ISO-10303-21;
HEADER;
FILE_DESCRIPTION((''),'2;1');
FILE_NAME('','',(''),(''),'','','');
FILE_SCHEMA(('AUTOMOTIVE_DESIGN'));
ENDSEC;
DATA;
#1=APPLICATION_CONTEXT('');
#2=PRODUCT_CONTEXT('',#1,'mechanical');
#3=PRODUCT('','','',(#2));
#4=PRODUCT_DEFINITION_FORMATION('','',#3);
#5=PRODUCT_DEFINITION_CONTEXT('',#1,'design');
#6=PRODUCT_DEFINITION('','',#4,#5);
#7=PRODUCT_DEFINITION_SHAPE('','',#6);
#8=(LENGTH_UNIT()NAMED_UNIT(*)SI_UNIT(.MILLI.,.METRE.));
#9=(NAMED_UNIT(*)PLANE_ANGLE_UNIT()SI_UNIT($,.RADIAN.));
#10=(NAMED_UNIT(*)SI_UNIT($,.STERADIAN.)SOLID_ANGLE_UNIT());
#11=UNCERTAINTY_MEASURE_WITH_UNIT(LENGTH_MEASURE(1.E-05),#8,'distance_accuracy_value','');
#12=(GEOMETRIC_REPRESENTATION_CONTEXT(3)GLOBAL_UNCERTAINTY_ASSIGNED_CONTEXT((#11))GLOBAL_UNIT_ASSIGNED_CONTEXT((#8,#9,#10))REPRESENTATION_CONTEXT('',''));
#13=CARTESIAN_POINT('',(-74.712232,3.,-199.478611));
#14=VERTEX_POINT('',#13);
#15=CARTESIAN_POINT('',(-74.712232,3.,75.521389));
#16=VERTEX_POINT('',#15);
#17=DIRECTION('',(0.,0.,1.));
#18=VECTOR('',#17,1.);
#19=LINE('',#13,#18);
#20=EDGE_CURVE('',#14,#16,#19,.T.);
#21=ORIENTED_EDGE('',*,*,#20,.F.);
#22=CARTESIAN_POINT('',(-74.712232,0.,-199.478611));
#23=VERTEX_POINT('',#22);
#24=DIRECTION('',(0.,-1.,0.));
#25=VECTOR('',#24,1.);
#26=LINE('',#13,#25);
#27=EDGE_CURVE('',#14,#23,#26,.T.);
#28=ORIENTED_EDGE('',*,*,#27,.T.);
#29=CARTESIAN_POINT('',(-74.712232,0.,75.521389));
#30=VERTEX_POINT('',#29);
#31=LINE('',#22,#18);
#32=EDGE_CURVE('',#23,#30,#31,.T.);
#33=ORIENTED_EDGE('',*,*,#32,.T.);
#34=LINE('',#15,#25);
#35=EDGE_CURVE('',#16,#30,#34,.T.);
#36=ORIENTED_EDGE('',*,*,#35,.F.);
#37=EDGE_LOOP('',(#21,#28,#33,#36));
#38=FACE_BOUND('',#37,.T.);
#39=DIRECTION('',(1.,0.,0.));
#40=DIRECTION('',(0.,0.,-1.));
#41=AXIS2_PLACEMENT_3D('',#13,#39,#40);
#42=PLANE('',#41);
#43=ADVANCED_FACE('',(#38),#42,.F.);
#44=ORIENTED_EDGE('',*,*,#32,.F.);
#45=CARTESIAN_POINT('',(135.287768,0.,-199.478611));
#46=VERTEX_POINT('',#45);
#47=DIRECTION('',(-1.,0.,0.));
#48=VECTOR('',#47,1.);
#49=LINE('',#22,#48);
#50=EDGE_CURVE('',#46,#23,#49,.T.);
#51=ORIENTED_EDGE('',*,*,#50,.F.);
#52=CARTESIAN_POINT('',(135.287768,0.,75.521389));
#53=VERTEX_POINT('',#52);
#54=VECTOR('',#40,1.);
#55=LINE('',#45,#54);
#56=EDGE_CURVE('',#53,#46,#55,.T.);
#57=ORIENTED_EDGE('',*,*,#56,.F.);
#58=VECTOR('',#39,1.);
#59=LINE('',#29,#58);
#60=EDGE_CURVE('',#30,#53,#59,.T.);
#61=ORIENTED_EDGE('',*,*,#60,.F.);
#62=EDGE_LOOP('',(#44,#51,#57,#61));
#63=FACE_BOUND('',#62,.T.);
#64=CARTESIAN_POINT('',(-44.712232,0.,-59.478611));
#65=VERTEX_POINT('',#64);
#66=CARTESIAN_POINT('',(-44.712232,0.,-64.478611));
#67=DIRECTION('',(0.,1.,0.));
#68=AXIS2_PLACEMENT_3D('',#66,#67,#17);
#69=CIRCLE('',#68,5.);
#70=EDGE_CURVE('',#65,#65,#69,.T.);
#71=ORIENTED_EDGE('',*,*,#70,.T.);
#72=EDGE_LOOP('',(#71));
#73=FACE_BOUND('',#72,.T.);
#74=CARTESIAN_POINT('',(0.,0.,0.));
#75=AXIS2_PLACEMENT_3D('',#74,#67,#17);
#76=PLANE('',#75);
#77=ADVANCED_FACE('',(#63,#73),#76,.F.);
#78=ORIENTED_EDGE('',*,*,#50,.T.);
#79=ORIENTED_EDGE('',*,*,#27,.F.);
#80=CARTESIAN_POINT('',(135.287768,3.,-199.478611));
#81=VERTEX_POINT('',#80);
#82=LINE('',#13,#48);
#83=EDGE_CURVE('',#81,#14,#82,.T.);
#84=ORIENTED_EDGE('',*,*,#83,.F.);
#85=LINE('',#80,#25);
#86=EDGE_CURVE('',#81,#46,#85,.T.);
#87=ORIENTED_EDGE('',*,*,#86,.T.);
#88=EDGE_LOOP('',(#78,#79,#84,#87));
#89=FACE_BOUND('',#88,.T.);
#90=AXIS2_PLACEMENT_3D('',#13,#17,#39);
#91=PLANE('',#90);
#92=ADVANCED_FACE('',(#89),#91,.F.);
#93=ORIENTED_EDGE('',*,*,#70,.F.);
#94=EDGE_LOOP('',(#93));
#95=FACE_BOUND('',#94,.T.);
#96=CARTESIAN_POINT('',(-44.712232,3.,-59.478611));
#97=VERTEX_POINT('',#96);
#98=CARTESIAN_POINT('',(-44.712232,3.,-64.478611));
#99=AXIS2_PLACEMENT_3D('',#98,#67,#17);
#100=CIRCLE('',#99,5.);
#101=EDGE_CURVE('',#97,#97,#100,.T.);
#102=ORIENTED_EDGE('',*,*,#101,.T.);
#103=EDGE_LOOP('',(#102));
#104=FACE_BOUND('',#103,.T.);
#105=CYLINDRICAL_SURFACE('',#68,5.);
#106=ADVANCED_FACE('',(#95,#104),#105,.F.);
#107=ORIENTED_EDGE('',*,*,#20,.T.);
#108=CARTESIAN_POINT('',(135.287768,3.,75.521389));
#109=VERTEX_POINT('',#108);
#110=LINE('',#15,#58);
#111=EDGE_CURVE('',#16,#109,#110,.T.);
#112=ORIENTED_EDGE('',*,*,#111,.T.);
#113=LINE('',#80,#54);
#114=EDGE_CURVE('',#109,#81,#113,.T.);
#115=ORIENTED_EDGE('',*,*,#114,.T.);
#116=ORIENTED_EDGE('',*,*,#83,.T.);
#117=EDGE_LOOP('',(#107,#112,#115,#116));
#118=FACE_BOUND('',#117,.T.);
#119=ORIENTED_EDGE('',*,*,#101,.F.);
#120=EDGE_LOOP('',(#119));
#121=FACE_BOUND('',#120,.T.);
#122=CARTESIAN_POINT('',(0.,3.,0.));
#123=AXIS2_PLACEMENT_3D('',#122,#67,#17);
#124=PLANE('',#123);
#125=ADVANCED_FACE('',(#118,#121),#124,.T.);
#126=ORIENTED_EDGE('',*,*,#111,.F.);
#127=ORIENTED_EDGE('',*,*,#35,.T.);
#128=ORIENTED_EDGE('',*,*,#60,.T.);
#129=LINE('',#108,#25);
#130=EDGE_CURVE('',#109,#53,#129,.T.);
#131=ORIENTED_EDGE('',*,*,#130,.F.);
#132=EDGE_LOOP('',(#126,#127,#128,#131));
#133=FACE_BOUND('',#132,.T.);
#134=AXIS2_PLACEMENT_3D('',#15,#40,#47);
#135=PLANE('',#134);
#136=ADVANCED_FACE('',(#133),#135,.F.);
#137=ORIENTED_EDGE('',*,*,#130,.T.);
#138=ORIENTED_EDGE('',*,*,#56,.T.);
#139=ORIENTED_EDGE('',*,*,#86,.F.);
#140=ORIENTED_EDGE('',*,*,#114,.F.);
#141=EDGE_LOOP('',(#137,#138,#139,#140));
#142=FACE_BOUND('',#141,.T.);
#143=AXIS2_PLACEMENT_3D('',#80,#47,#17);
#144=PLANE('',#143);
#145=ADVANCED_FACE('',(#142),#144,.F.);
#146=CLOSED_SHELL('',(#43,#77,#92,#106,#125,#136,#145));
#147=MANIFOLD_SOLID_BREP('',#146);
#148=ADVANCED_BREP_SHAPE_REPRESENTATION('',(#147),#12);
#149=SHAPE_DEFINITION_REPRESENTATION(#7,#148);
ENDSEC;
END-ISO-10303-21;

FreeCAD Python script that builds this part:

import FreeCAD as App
import Part
import Sketcher
from FreeCAD import Vector
Q = App.Units.Quantity


def add_polygon(sketch, points):
    """Adds a closed chain of lines whose ends are joined by coincident constraints."""
    first, n = sketch.GeometryCount, len(points)
    for a, b in zip(points, points[1:] + points[:1]):
        sketch.addGeometry(Part.LineSegment(App.Vector(*a, 0), App.Vector(*b, 0)), False)
    for i in range(n):
        sketch.addConstraint(Sketcher.Constraint("Coincident", first + i, 2, first + (i + 1) % n, 1))

doc = App.newDocument("Part")
body = doc.addObject("PartDesign::Body", "Body")

# Sketch on XZ plane
sketch1 = body.newObject("Sketcher::SketchObject", "Sketch")
sketch1.AttachmentSupport = (doc.getObject("XZ_Plane"), [""])
sketch1.MapMode = "FlatFace"
add_polygon(sketch1, [(-75, -199), (-75, 76), (135, 76), (135, -199)])  # lines 0-3
sketch1.addConstraint([
    Sketcher.Constraint("Vertical", 0),
    Sketcher.Constraint("Horizontal", 1),
    Sketcher.Constraint("Vertical", 2),
    Sketcher.Constraint("Horizontal", 3),
    Sketcher.Constraint("DistanceX", 1, 1, 1, 2, Q("210 mm")),
    Sketcher.Constraint("DistanceY", 0, 1, 0, 2, Q("275 mm")),
    Sketcher.Constraint("DistanceX", 0, 2, -1, 1, Q("74.712232 mm")),
    Sketcher.Constraint("DistanceY", -1, 1, 0, 2, Q("75.521389 mm")),
])
pad1 = body.newObject("PartDesign::Pad", "Pad")
pad1.Profile = sketch1
pad1.Length = 3
pad1.Reversed = True

# Sketch on XZ plane
sketch2 = body.newObject("Sketcher::SketchObject", "Sketch001")
sketch2.AttachmentSupport = (doc.getObject("XZ_Plane"), [""])
sketch2.MapMode = "FlatFace"
sketch2.AttachmentOffset = App.Placement(Vector(0, 0, -3), App.Rotation())
sketch2.addGeometry(Part.Circle(Vector(-45, -64, 0), Vector(0, 0, 1), 5), False)
sketch2.addConstraint([
    Sketcher.Constraint("Diameter", 0, Q("10 mm")),
    Sketcher.Constraint("DistanceX", 0, 3, -1, 1, Q("44.712232 mm")),
    Sketcher.Constraint("DistanceY", 0, 3, -1, 1, Q("64.478611 mm")),
])
pocket1 = body.newObject("PartDesign::Pocket", "Pocket")
pocket1.Profile = sketch2
pocket1.Length = 3
pocket1.Reversed = True

doc.recompute()
